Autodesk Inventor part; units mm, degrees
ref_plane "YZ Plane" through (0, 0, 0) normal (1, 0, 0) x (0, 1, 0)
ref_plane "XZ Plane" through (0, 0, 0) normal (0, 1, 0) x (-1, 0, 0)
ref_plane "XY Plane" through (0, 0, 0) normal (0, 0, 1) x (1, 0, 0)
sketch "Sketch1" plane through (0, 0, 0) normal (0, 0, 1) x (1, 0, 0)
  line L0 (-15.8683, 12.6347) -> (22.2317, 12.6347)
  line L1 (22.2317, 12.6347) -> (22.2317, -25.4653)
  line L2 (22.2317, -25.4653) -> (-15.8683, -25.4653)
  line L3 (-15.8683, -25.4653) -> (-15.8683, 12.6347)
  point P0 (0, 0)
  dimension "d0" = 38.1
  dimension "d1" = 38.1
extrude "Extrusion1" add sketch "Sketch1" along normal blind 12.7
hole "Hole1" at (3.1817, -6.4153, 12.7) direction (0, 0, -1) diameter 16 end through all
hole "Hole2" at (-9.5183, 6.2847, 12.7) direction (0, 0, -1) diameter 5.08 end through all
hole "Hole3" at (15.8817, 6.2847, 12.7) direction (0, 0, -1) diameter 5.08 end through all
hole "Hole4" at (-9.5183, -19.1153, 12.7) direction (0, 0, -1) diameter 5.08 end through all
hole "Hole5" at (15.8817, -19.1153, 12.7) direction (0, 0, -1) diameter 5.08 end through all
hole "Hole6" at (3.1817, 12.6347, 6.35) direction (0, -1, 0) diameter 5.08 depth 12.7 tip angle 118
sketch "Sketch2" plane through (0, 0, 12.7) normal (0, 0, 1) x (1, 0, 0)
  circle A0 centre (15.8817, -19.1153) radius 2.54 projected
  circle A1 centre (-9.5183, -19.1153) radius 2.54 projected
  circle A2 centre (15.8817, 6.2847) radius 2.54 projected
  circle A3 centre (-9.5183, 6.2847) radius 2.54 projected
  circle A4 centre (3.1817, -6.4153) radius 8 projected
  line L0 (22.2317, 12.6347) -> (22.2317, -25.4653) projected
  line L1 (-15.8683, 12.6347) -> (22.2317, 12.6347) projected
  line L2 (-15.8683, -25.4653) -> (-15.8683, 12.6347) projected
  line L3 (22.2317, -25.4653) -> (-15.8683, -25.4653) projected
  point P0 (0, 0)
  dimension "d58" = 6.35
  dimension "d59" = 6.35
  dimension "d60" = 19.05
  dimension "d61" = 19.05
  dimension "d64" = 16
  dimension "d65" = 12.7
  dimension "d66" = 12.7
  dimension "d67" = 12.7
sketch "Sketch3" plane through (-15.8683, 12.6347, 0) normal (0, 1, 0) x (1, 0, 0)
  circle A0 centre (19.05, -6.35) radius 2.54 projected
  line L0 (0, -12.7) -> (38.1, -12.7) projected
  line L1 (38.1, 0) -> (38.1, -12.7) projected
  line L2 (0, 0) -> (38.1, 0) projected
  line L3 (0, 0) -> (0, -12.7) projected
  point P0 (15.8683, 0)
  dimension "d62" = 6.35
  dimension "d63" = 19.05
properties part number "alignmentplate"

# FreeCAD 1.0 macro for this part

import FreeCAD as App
import Part
import Sketcher
from FreeCAD import Vector
Q = App.Units.Quantity


def add_polygon(sketch, points):
    """Adds a closed chain of lines whose ends are joined by coincident constraints."""
    first, n = sketch.GeometryCount, len(points)
    for a, b in zip(points, points[1:] + points[:1]):
        sketch.addGeometry(Part.LineSegment(App.Vector(*a, 0), App.Vector(*b, 0)), False)
    for i in range(n):
        sketch.addConstraint(Sketcher.Constraint("Coincident", first + i, 2, first + (i + 1) % n, 1))

doc = App.newDocument("Part")
params = doc.addObject("Spreadsheet::Sheet", "Params")
for row, (alias, value) in enumerate([
    ("sketch1_width", "1.5 in"),
    ("pad1_length", "0.5 in"),
    ("hole_diameter", "16 mm"),
    ("sketch3_diameter", "0.2 in"),
    ("hole2_diameter", "0.2 in"),
    ("sketch4_diameter", "0.2 in"),
    ("hole3_diameter", "0.2 in"),
    ("sketch5_diameter", "0.2 in"),
    ("hole4_diameter", "0.2 in"),
    ("sketch6_diameter", "0.2 in"),
    ("hole5_diameter", "0.2 in"),
    ("sketch7_diameter", "0.2 in"),
    ("hole6_diameter", "0.2 in"),
    ("hole6_depth", "0.5 in"),
], start=1):
    params.set(f"A{row}", alias)
    params.set(f"B{row}", "=" + value)
    params.setAlias(f"B{row}", alias)

body = doc.addObject("PartDesign::Body", "Body")

# Sketch on XY plane
sketch1 = body.newObject("Sketcher::SketchObject", "Sketch")
sketch1.AttachmentSupport = (doc.getObject("XY_Plane"), [""])
sketch1.MapMode = "FlatFace"
add_polygon(sketch1, [(22, 13), (-16, 13), (-16, -25), (22, -25)])  # lines 0-3
sketch1.addConstraint(Sketcher.Constraint("Horizontal", 0))
sketch1.addConstraint(Sketcher.Constraint("Vertical", 1))
sketch1.addConstraint(Sketcher.Constraint("Horizontal", 2))
sketch1.addConstraint(Sketcher.Constraint("Vertical", 3))
sketch1.addConstraint(Sketcher.Constraint("Equal", 2, 1))
sketch1.addConstraint(Sketcher.Constraint("DistanceX", 0, 2, 0, 1, Q("1.5 in")))
sketch1.addConstraint(Sketcher.Constraint("DistanceX", 0, 2, -1, 1, 15.8683))
sketch1.addConstraint(Sketcher.Constraint("DistanceY", -1, 1, 0, 2, 12.6347))
sketch1.setExpression("Constraints[9]", "Params.sketch1_width")
pad1 = body.newObject("PartDesign::Pad", "Pad")
pad1.Profile = sketch1
pad1.setExpression("Length", "Params.pad1_length")

# Sketch on XY plane
sketch2 = body.newObject("Sketcher::SketchObject", "Sketch001")
sketch2.AttachmentSupport = (doc.getObject("XY_Plane"), [""])
sketch2.MapMode = "FlatFace"
sketch2.AttachmentOffset = App.Placement(Vector(0, 0, 0.5 * 25.4), App.Rotation())
sketch2.addGeometry(Part.Circle(Vector(3, -6, 0), Vector(0, 0, 1), 8), False)
sketch2.addConstraint(Sketcher.Constraint("Diameter", 0, 16.0))
sketch2.addConstraint(Sketcher.Constraint("DistanceX", -1, 1, 0, 3, 3.1817))
sketch2.addConstraint(Sketcher.Constraint("DistanceY", 0, 3, -1, 1, 6.4153))
doc.recompute()
hole = body.newObject("PartDesign::Hole", "Hole")
hole.Profile = sketch2
hole.ThreadType = "None"
hole.setExpression("Diameter", "Params.hole_diameter")
hole.DepthType = "ThroughAll"

# Sketch on XY plane
sketch3 = body.newObject("Sketcher::SketchObject", "Sketch002")
sketch3.AttachmentSupport = (doc.getObject("XY_Plane"), [""])
sketch3.MapMode = "FlatFace"
sketch3.AttachmentOffset = App.Placement(Vector(0, 0, 0.5 * 25.4), App.Rotation())
sketch3.addGeometry(Part.Circle(Vector(-9.5, 6.3, 0), Vector(0, 0, 1), 2.5), False)
sketch3.addConstraint(Sketcher.Constraint("Diameter", 0, Q("0.2 in")))
sketch3.addConstraint(Sketcher.Constraint("DistanceX", 0, 3, -1, 1, 9.5183))
sketch3.addConstraint(Sketcher.Constraint("DistanceY", -1, 1, 0, 3, 6.2847))
sketch3.setExpression("Constraints[0]", "Params.sketch3_diameter")
doc.recompute()
hole2 = body.newObject("PartDesign::Hole", "Hole001")
hole2.Profile = sketch3
hole2.ThreadType = "None"
hole2.setExpression("Diameter", "Params.hole2_diameter")
hole2.DepthType = "ThroughAll"

# Sketch on XY plane
sketch4 = body.newObject("Sketcher::SketchObject", "Sketch003")
sketch4.AttachmentSupport = (doc.getObject("XY_Plane"), [""])
sketch4.MapMode = "FlatFace"
sketch4.AttachmentOffset = App.Placement(Vector(0, 0, 0.5 * 25.4), App.Rotation())
sketch4.addGeometry(Part.Circle(Vector(15.9, 6.3, 0), Vector(0, 0, 1), 2.5), False)
sketch4.addConstraint(Sketcher.Constraint("Diameter", 0, Q("0.2 in")))
sketch4.addConstraint(Sketcher.Constraint("DistanceX", -1, 1, 0, 3, 15.8817))
sketch4.addConstraint(Sketcher.Constraint("DistanceY", -1, 1, 0, 3, 6.2847))
sketch4.setExpression("Constraints[0]", "Params.sketch4_diameter")
doc.recompute()
hole3 = body.newObject("PartDesign::Hole", "Hole002")
hole3.Profile = sketch4
hole3.ThreadType = "None"
hole3.setExpression("Diameter", "Params.hole3_diameter")
hole3.DepthType = "ThroughAll"

# Sketch on XY plane
sketch5 = body.newObject("Sketcher::SketchObject", "Sketch004")
sketch5.AttachmentSupport = (doc.getObject("XY_Plane"), [""])
sketch5.MapMode = "FlatFace"
sketch5.AttachmentOffset = App.Placement(Vector(0, 0, 0.5 * 25.4), App.Rotation())
sketch5.addGeometry(Part.Circle(Vector(-9.5, -19.1, 0), Vector(0, 0, 1), 2.5), False)
sketch5.addConstraint(Sketcher.Constraint("Diameter", 0, Q("0.2 in")))
sketch5.addConstraint(Sketcher.Constraint("DistanceX", 0, 3, -1, 1, 9.5183))
sketch5.addConstraint(Sketcher.Constraint("DistanceY", 0, 3, -1, 1, 19.1153))
sketch5.setExpression("Constraints[0]", "Params.sketch5_diameter")
doc.recompute()
hole4 = body.newObject("PartDesign::Hole", "Hole003")
hole4.Profile = sketch5
hole4.ThreadType = "None"
hole4.setExpression("Diameter", "Params.hole4_diameter")
hole4.DepthType = "ThroughAll"

# Sketch on XY plane
sketch6 = body.newObject("Sketcher::SketchObject", "Sketch005")
sketch6.AttachmentSupport = (doc.getObject("XY_Plane"), [""])
sketch6.MapMode = "FlatFace"
sketch6.AttachmentOffset = App.Placement(Vector(0, 0, 0.5 * 25.4), App.Rotation())
sketch6.addGeometry(Part.Circle(Vector(15.9, -19.1, 0), Vector(0, 0, 1), 2.5), False)
sketch6.addConstraint(Sketcher.Constraint("Diameter", 0, Q("0.2 in")))
sketch6.addConstraint(Sketcher.Constraint("DistanceX", -1, 1, 0, 3, 15.8817))
sketch6.addConstraint(Sketcher.Constraint("DistanceY", 0, 3, -1, 1, 19.1153))
sketch6.setExpression("Constraints[0]", "Params.sketch6_diameter")
doc.recompute()
hole5 = body.newObject("PartDesign::Hole", "Hole004")
hole5.Profile = sketch6
hole5.ThreadType = "None"
hole5.setExpression("Diameter", "Params.hole5_diameter")
hole5.DepthType = "ThroughAll"

# Sketch on XZ plane
sketch7 = body.newObject("Sketcher::SketchObject", "Sketch006")
sketch7.AttachmentSupport = (doc.getObject("XZ_Plane"), [""])
sketch7.MapMode = "FlatFace"
sketch7.AttachmentOffset = App.Placement(Vector(0, 0, -12.6347), App.Rotation())
sketch7.addGeometry(Part.Circle(Vector(3.2, 6.3, 0), Vector(0, 0, 1), 2.5), False)
sketch7.addConstraint(Sketcher.Constraint("Diameter", 0, Q("0.2 in")))
sketch7.addConstraint(Sketcher.Constraint("DistanceY", -1, 1, 0, 3, Q("0.25 in")))
sketch7.addConstraint(Sketcher.Constraint("DistanceX", -1, 1, 0, 3, 3.1817))
sketch7.setExpression("Constraints[0]", "Params.sketch7_diameter")
doc.recompute()
hole6 = body.newObject("PartDesign::Hole", "Hole005")
hole6.Profile = sketch7
hole6.ThreadType = "None"
hole6.setExpression("Diameter", "Params.hole6_diameter")
hole6.DepthType = "Dimension"
hole6.setExpression("Depth", "Params.hole6_depth")
hole6.DrillPoint = "Angled"
hole6.DrillPointAngle = 118
hole6.Reversed = True

doc.recompute()
